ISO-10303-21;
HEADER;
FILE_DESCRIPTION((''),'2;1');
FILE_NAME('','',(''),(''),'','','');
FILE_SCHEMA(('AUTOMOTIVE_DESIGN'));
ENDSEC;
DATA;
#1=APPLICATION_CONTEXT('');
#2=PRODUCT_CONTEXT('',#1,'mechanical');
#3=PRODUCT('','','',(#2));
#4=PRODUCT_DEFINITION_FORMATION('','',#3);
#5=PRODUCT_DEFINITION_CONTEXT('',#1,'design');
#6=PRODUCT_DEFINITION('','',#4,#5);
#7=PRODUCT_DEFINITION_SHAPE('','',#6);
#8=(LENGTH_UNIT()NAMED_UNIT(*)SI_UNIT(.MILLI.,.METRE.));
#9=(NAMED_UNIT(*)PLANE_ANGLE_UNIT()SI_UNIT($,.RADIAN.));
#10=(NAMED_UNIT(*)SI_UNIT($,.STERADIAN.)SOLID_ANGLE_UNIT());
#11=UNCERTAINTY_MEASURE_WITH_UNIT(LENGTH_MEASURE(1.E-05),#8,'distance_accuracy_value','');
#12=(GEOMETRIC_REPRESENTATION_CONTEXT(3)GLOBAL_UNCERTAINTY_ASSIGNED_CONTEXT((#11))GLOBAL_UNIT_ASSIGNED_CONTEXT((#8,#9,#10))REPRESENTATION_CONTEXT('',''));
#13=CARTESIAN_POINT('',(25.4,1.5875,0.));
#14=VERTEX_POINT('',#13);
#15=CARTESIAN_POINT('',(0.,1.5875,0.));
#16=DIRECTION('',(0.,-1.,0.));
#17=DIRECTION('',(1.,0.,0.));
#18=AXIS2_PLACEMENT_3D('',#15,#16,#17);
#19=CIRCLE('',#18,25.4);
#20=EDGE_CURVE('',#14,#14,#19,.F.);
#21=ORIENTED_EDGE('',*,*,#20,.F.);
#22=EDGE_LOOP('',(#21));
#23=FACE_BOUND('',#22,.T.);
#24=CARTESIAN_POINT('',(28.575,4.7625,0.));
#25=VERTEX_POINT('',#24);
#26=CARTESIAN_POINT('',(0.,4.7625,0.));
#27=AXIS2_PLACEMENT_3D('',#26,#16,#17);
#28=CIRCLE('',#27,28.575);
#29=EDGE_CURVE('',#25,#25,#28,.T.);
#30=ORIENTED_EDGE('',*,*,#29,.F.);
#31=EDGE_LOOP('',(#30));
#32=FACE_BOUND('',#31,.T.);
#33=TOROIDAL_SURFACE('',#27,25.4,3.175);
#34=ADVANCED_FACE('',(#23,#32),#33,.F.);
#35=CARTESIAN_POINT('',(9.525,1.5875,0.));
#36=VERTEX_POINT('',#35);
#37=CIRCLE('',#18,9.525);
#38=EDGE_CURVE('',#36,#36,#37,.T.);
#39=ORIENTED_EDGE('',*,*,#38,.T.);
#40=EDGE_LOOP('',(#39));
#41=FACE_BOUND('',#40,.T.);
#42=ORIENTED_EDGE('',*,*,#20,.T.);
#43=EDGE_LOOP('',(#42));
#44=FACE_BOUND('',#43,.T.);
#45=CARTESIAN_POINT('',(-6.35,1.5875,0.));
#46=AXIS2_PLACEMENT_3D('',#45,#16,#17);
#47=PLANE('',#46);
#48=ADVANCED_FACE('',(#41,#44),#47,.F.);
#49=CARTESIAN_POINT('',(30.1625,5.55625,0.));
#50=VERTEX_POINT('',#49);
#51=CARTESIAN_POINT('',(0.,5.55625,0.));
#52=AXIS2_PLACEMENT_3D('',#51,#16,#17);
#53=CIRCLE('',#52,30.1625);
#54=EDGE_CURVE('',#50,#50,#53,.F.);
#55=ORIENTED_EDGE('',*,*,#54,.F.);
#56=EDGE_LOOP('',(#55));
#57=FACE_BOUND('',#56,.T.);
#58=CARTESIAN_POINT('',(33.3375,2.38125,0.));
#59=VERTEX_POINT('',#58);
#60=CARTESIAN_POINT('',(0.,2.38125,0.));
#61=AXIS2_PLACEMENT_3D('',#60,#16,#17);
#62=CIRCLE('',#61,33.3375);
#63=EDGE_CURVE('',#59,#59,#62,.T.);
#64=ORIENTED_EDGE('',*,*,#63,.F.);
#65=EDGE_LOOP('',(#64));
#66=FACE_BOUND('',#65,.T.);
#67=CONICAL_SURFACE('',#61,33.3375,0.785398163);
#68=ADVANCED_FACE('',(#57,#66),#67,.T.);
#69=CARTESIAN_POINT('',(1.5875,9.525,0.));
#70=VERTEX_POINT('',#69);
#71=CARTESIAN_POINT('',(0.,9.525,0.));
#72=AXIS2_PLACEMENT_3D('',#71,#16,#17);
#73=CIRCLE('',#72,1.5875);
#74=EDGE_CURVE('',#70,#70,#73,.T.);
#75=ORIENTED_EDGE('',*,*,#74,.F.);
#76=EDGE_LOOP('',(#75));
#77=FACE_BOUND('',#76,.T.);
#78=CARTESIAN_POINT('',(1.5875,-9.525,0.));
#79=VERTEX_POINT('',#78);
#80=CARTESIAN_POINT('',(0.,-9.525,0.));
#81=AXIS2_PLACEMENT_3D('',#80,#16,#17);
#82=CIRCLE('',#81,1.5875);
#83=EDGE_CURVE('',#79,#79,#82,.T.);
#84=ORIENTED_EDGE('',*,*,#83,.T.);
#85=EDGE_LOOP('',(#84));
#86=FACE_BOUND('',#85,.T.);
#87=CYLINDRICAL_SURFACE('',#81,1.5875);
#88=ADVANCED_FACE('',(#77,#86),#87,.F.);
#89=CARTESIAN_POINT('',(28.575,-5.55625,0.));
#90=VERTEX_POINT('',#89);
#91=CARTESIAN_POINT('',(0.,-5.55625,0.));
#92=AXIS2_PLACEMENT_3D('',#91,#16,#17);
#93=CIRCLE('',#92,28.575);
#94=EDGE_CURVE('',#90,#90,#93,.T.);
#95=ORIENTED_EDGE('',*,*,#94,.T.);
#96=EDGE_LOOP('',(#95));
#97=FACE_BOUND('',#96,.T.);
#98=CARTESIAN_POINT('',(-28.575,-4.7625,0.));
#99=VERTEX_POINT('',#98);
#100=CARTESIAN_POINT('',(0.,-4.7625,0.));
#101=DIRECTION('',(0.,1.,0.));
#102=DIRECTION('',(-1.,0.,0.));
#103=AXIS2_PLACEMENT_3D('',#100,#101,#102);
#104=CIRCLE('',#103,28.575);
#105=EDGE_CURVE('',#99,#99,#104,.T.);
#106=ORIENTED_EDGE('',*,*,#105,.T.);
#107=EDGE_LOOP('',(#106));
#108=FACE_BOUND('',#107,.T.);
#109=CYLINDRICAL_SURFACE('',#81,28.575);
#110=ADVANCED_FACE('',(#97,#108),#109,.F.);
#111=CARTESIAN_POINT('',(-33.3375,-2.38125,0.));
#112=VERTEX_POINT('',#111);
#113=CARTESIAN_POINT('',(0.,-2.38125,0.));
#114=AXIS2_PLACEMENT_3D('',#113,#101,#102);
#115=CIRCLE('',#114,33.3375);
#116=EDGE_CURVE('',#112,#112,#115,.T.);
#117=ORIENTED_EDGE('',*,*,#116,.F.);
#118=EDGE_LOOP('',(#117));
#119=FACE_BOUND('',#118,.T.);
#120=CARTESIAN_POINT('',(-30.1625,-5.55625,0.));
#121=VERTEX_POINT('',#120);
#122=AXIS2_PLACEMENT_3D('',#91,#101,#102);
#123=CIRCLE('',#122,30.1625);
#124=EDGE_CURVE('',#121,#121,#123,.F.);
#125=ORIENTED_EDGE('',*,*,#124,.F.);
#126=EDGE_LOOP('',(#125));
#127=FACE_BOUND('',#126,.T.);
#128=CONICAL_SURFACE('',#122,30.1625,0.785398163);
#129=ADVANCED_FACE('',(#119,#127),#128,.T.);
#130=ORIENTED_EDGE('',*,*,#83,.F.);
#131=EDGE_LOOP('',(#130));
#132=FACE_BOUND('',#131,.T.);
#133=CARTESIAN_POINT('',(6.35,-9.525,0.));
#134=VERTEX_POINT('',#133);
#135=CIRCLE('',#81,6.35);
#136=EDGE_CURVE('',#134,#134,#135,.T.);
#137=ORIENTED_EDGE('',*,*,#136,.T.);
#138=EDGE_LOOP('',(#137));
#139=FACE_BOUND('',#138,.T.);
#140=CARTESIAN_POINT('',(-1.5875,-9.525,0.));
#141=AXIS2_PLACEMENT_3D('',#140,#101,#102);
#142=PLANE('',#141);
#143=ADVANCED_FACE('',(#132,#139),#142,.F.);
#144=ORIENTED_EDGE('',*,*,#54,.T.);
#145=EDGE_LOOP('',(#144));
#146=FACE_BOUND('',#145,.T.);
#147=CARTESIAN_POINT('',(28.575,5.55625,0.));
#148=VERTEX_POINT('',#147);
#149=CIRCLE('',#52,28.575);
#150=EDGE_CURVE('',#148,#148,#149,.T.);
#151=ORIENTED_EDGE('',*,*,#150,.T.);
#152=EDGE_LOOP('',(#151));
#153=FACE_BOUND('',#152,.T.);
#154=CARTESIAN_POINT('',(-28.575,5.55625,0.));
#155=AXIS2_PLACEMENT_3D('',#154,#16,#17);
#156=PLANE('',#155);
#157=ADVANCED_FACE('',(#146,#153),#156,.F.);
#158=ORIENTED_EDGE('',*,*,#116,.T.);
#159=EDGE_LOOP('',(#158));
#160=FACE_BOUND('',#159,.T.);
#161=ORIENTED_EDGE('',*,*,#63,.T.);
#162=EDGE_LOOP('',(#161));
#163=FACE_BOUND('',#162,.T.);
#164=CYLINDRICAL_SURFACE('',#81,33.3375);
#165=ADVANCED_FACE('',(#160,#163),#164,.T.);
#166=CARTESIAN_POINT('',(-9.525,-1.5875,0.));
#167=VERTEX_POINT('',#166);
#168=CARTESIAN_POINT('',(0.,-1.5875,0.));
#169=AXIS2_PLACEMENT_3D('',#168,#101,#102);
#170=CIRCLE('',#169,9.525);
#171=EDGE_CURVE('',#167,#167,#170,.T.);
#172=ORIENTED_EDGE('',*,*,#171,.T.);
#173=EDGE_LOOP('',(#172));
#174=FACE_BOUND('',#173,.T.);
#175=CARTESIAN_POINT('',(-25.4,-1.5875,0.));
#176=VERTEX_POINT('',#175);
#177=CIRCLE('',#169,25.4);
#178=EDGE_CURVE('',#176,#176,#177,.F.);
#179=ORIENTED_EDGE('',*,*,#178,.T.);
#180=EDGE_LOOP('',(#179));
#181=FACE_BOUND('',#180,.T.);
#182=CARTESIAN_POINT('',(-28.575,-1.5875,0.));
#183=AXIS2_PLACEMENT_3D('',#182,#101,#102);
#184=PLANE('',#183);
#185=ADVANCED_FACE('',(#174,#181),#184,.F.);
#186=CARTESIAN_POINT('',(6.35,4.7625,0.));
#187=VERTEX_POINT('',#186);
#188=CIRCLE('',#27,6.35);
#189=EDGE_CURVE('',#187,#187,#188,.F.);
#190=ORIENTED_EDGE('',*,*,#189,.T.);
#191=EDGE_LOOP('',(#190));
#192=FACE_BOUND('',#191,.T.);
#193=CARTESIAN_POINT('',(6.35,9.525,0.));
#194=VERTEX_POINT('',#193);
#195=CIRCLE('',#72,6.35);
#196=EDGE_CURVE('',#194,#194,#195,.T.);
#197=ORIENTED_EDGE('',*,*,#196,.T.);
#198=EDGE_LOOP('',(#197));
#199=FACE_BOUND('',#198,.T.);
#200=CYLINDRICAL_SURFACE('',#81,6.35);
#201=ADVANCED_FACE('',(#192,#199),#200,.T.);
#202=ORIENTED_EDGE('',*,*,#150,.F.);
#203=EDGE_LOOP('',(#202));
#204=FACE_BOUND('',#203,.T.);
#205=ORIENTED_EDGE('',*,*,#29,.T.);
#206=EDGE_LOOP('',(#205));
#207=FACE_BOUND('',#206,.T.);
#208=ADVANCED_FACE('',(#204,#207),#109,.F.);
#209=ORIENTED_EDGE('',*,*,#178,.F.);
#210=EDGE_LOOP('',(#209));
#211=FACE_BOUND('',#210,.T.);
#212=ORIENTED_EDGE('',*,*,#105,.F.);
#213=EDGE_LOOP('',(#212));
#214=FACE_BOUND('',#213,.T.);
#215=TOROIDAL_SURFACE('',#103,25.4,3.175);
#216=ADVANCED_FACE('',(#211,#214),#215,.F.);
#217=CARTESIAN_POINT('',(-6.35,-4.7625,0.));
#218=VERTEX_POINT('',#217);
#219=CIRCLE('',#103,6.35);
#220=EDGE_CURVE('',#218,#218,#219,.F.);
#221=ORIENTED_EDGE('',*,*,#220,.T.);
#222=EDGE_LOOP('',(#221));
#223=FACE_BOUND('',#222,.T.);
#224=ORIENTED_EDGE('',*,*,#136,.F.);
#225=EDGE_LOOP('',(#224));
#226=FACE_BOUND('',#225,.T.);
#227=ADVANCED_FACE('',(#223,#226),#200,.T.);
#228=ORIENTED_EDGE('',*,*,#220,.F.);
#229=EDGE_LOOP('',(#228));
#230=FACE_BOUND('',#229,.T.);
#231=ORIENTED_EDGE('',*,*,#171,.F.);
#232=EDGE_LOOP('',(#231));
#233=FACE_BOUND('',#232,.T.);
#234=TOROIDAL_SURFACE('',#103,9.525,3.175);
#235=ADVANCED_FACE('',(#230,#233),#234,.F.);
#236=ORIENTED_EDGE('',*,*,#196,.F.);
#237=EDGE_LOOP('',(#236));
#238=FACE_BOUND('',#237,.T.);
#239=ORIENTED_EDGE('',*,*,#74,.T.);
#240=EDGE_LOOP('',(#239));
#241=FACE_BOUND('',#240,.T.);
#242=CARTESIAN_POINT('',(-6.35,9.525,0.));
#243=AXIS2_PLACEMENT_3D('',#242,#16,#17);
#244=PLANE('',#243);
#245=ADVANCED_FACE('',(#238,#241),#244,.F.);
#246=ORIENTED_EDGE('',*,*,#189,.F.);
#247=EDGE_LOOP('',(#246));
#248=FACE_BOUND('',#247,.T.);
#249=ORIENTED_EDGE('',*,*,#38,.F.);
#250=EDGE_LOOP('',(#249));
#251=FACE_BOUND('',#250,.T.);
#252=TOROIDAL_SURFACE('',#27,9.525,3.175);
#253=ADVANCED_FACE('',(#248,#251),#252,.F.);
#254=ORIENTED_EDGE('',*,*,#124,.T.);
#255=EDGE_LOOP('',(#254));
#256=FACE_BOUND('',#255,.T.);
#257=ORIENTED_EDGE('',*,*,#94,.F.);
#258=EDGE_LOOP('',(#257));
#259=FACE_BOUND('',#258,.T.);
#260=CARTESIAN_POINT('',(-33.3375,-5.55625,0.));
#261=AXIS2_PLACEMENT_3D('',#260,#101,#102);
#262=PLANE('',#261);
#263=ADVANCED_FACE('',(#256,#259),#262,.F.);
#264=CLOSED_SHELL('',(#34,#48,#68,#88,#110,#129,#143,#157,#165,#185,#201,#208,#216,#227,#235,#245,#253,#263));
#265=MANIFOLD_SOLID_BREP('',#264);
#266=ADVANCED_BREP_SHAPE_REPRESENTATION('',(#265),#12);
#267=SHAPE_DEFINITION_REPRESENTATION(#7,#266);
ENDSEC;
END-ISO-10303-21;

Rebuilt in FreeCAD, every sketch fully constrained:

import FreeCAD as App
import Part
import Sketcher
Q = App.Units.Quantity


def edges_at(feature, points):
    """Names of the edges that pass closest to the given points."""
    edges = feature.Shape.Edges
    near = lambda p: min(range(len(edges)), key=lambda i: edges[i].distToShape(Part.Vertex(*p))[0])
    return sorted({f"Edge{near(p) + 1}" for p in points})

doc = App.newDocument("Part")
body = doc.addObject("PartDesign::Body", "Body")

# Sketch on XY plane
sketch1 = body.newObject("Sketcher::SketchObject", "Sketch")
sketch1.AttachmentSupport = (doc.getObject("XY_Plane"), [""])
sketch1.MapMode = "FlatFace"
sketch1.addGeometry([
    Part.LineSegment(App.Vector(-1.6, 9.5, 0), App.Vector(-6.3, 9.5, 0)),  # 0
    Part.LineSegment(App.Vector(-6.3, 9.5, 0), App.Vector(-6.3, 1.6, 0)),  # 1
    Part.LineSegment(App.Vector(-6.3, 1.6, 0), App.Vector(-28.6, 1.6, 0)),  # 2
    Part.LineSegment(App.Vector(-28.6, 1.6, 0), App.Vector(-28.6, 5.6, 0)),  # 3
    Part.LineSegment(App.Vector(-28.6, 5.6, 0), App.Vector(-33.3, 5.6, 0)),  # 4
    Part.LineSegment(App.Vector(-33.3, 5.6, 0), App.Vector(-33.3, -5.6, 0)),  # 5
    Part.LineSegment(App.Vector(-33.3, -5.6, 0), App.Vector(-28.6, -5.6, 0)),  # 6
    Part.LineSegment(App.Vector(-28.6, -5.6, 0), App.Vector(-28.6, -1.6, 0)),  # 7
    Part.LineSegment(App.Vector(-28.6, -1.6, 0), App.Vector(-6.3, -1.6, 0)),  # 8
    Part.LineSegment(App.Vector(-6.3, -1.6, 0), App.Vector(-6.3, -9.5, 0)),  # 9
    Part.LineSegment(App.Vector(-6.3, -9.5, 0), App.Vector(-1.6, -9.5, 0)),  # 10
    Part.LineSegment(App.Vector(-1.6, -9.5, 0), App.Vector(-1.6, 9.5, 0)),  # 11
], False)
sketch1.addConstraint([
    Sketcher.Constraint("Coincident", 0, 2, 1, 1),
    Sketcher.Constraint("Coincident", 1, 2, 2, 1),
    Sketcher.Constraint("Coincident", 2, 2, 3, 1),
    Sketcher.Constraint("Coincident", 3, 2, 4, 1),
    Sketcher.Constraint("Coincident", 4, 2, 5, 1),
    Sketcher.Constraint("Coincident", 5, 2, 6, 1),
    Sketcher.Constraint("Coincident", 6, 2, 7, 1),
    Sketcher.Constraint("Coincident", 7, 2, 8, 1),
    Sketcher.Constraint("Coincident", 8, 2, 9, 1),
    Sketcher.Constraint("Coincident", 9, 2, 10, 1),
    Sketcher.Constraint("Coincident", 10, 2, 11, 1),
    Sketcher.Constraint("Coincident", 11, 2, 0, 1),
    Sketcher.Constraint("Horizontal", 0),
    Sketcher.Constraint("Vertical", 1),
    Sketcher.Constraint("Horizontal", 2),
    Sketcher.Constraint("Vertical", 3),
    Sketcher.Constraint("Horizontal", 4),
    Sketcher.Constraint("Vertical", 5),
    Sketcher.Constraint("Horizontal", 6),
    Sketcher.Constraint("Vertical", 7),
    Sketcher.Constraint("Horizontal", 8),
    Sketcher.Constraint("Vertical", 9),
    Sketcher.Constraint("Horizontal", 10),
    Sketcher.Constraint("Vertical", 11),
    Sketcher.Constraint("Symmetric", 3, 2, 6, 2, -1),
    Sketcher.Constraint("Symmetric", 1, 2, 8, 2, -1),
    Sketcher.Constraint("Equal", 0, 4),
    Sketcher.Constraint("Equal", 1, 9),
    Sketcher.Constraint("DistanceY", 11, 1, 11, 2, Q("0.75 in")),
    Sketcher.Constraint("DistanceX", 0, 2, 0, 1, Q("0.1875 in")),
    Sketcher.Constraint("DistanceX", 2, 2, 2, 1, Q("0.875 in")),
    Sketcher.Constraint("DistanceY", 1, 2, 1, 1, Q("0.3125 in")),
    Sketcher.Constraint("DistanceY", 3, 1, 3, 2, Q("0.15625 in")),
    Sketcher.Constraint("DistanceX", 0, 2, -1, 1, Q("0.25 in")),
])
revolution = body.newObject("PartDesign::Revolution", "Revolution")
revolution.Profile = sketch1
revolution.ReferenceAxis = (sketch1, ["V_Axis"])
revolution.Angle = 360
doc.recompute()

fillet = body.newObject("PartDesign::Fillet", "Fillet")
fillet.Base = (revolution, edges_at(revolution, [
    (28.575, -1.587, 0),
    (6.35, -1.587, 0),
    (6.35, 1.587, 0),
    (28.575, 1.587, 0),
]))
fillet.Radius = Q("0.125 in")
doc.recompute()

chamfer = body.newObject("PartDesign::Chamfer", "Chamfer")
chamfer.Base = (fillet, edges_at(fillet, [(33.337, 5.556, 0), (33.337, -5.556, 0)]))
chamfer.Size = Q("0.125 in")

doc.recompute()
